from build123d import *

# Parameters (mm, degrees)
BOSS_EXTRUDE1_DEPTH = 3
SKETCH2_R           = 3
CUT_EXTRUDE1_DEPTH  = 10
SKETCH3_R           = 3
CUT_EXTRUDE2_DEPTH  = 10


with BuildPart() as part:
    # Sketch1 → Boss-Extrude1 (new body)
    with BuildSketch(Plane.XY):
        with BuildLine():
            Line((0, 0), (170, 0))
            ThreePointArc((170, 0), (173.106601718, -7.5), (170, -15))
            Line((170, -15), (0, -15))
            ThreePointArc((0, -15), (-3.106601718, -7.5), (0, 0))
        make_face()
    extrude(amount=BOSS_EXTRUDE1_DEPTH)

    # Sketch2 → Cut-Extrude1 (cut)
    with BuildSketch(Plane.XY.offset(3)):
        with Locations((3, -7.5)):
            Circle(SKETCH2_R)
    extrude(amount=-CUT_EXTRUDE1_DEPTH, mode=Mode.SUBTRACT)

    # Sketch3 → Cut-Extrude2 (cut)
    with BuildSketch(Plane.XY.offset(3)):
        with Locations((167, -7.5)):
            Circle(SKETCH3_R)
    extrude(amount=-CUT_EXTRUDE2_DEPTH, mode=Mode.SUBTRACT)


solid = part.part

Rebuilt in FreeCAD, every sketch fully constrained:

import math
import FreeCAD as App
import Part
import Sketcher
from FreeCAD import Vector
Q = App.Units.Quantity

doc = App.newDocument("Part")
params = doc.addObject("Spreadsheet::Sheet", "Params")
for row, (alias, value) in enumerate([
    ("sketch1_width", "170 mm"),
    ("pad1_length", "3 mm"),
    ("sketch2_diameter", "6 mm"),
    ("pocket1_length", "10 mm"),
    ("sketch3_diameter", "6 mm"),
    ("pocket2_length", "10 mm"),
], start=1):
    params.set(f"A{row}", alias)
    params.set(f"B{row}", "=" + value)
    params.setAlias(f"B{row}", alias)

body = doc.addObject("PartDesign::Body", "Body")

sketch1 = body.newObject("Sketcher::SketchObject", "Sketch")
sketch1.AttachmentSupport = (doc.getObject("XY_Plane"), [""])
sketch1.MapMode = "FlatFace"
sketch1.addGeometry([
    Part.LineSegment(Vector(170, 0, 0), Vector(0, 0, 0)),
    Part.ArcOfCircle(Part.Circle(Vector(7, -8, 0), Vector(0, 0, 1), 11), math.radians(135), math.radians(225)),
    Part.LineSegment(Vector(0, -15, 0), Vector(170, -15, 0)),
    Part.ArcOfCircle(Part.Circle(Vector(163, -8, 0), Vector(0, 0, 1), 11), math.radians(-45), math.radians(45)),
], False)
sketch1.addConstraint([
    Sketcher.Constraint("Coincident", 0, 2, 1, 1),
    Sketcher.Constraint("Coincident", 1, 2, 2, 1),
    Sketcher.Constraint("Coincident", 2, 2, 3, 1),
    Sketcher.Constraint("Coincident", 3, 2, 0, 1),
    Sketcher.Constraint("Horizontal", 0),
    Sketcher.Constraint("Horizontal", 2),
    Sketcher.Constraint("Coincident", 0, 2, -1, 1),
    Sketcher.Constraint("Equal", 1, 3),
    Sketcher.Constraint("PointOnObject", 1, 2, -2),
    Sketcher.Constraint("Horizontal", 1, 3, 3, 3),
    Sketcher.Constraint("DistanceX", 0, 2, 0, 1, Q("170 mm")),
    Sketcher.Constraint("DistanceY", 1, 2, -1, 1, Q("15 mm")),
    Sketcher.Constraint("DistanceX", 1, 3, 3, 3, Q("155 mm")),
])
sketch1.setExpression("Constraints[10]", "Params.sketch1_width")
pad1 = body.newObject("PartDesign::Pad", "Pad")
pad1.Profile = sketch1
pad1.setExpression("Length", "Params.pad1_length")

sketch2 = body.newObject("Sketcher::SketchObject", "Sketch001")
sketch2.AttachmentSupport = (doc.getObject("XY_Plane"), [""])
sketch2.MapMode = "FlatFace"
sketch2.AttachmentOffset = App.Placement(Vector(0, 0, 3), App.Rotation())
sketch2.addGeometry(Part.Circle(Vector(3, -7.5, 0), Vector(0, 0, 1), 3), False)
sketch2.addConstraint([
    Sketcher.Constraint("Diameter", 0, Q("6 mm")),
    Sketcher.Constraint("DistanceX", -1, 1, 0, 3, Q("3 mm")),
    Sketcher.Constraint("DistanceY", 0, 3, -1, 1, Q("7.5 mm")),
])
sketch2.setExpression("Constraints[0]", "Params.sketch2_diameter")
pocket1 = body.newObject("PartDesign::Pocket", "Pocket")
pocket1.Profile = sketch2
pocket1.setExpression("Length", "Params.pocket1_length")

sketch3 = body.newObject("Sketcher::SketchObject", "Sketch002")
sketch3.AttachmentSupport = (doc.getObject("XY_Plane"), [""])
sketch3.MapMode = "FlatFace"
sketch3.AttachmentOffset = App.Placement(Vector(0, 0, 3), App.Rotation())
sketch3.addGeometry(Part.Circle(Vector(167, -7.5, 0), Vector(0, 0, 1), 3), False)
sketch3.addConstraint([
    Sketcher.Constraint("Diameter", 0, Q("6 mm")),
    Sketcher.Constraint("DistanceX", -1, 1, 0, 3, Q("167 mm")),
    Sketcher.Constraint("DistanceY", 0, 3, -1, 1, Q("7.5 mm")),
])
sketch3.setExpression("Constraints[0]", "Params.sketch3_diameter")
pocket2 = body.newObject("PartDesign::Pocket", "Pocket001")
pocket2.Profile = sketch3
pocket2.setExpression("Length", "Params.pocket2_length")

doc.recompute()
